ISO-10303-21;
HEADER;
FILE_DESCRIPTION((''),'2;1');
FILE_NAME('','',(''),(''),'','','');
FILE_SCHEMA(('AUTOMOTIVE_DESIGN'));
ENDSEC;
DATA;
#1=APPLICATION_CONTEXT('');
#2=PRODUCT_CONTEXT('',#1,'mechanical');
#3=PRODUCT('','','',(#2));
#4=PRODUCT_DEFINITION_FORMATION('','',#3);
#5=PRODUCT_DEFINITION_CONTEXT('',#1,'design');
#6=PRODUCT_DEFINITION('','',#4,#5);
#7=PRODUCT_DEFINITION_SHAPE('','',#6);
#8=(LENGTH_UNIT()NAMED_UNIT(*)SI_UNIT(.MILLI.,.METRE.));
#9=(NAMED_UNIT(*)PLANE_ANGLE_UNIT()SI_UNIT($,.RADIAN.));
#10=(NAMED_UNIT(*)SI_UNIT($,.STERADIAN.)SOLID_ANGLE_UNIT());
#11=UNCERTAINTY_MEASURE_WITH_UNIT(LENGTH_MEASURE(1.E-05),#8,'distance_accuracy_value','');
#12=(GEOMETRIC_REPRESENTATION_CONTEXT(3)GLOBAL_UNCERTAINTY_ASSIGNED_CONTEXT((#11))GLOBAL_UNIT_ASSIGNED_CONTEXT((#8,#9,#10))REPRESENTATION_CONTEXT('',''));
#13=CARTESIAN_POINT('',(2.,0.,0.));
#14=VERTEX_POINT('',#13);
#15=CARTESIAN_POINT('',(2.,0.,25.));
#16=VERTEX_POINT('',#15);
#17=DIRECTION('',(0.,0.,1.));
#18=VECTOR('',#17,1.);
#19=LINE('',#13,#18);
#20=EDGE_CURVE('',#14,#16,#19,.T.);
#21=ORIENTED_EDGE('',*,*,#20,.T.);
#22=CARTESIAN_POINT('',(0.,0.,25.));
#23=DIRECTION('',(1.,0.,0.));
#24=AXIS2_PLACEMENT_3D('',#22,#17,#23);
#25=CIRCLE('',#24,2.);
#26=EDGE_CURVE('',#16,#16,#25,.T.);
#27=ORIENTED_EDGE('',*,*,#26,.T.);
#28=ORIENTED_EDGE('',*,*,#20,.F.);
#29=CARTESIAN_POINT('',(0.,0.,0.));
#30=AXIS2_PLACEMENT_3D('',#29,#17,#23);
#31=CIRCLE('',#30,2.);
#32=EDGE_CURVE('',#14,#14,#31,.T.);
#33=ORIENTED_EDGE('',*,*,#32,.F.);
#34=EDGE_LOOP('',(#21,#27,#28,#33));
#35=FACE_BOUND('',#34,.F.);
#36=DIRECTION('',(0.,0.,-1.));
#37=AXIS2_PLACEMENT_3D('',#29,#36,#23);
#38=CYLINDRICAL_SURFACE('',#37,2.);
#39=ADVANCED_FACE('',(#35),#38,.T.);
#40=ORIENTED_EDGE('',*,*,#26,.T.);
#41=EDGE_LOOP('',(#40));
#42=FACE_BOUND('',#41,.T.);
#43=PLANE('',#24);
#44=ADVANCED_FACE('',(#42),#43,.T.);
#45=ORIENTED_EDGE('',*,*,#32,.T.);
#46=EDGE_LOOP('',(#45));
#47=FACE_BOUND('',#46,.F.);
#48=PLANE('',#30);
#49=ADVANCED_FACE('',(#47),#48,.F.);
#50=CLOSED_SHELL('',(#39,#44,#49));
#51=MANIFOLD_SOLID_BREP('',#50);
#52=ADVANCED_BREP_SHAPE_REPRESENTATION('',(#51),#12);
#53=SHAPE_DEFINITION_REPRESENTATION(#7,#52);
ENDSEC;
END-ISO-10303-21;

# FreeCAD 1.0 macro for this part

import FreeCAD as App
import Part
import Sketcher
from FreeCAD import Vector
Q = App.Units.Quantity

doc = App.newDocument("Part")
params = doc.addObject("Spreadsheet::Sheet", "Params")
for row, (alias, value) in enumerate([
    ("sketch1_diameter", "4 mm"),
    ("pad1_length", "25 mm"),
], start=1):
    params.set(f"A{row}", alias)
    params.set(f"B{row}", "=" + value)
    params.setAlias(f"B{row}", alias)

body = doc.addObject("PartDesign::Body", "Body")

# Sketch on XY plane
sketch1 = body.newObject("Sketcher::SketchObject", "Sketch")
sketch1.AttachmentSupport = (doc.getObject("XY_Plane"), [""])
sketch1.MapMode = "FlatFace"
sketch1.addGeometry(Part.Circle(Vector(0, 0, 0), Vector(0, 0, 1), 2), False)
sketch1.addConstraint([
    Sketcher.Constraint("Coincident", 0, 3, -1, 1),
    Sketcher.Constraint("Diameter", 0, Q("4 mm")),
])
sketch1.setExpression("Constraints[1]", "Params.sketch1_diameter")
pad1 = body.newObject("PartDesign::Pad", "Pad")
pad1.Profile = sketch1
pad1.setExpression("Length", "Params.pad1_length")

doc.recompute()
